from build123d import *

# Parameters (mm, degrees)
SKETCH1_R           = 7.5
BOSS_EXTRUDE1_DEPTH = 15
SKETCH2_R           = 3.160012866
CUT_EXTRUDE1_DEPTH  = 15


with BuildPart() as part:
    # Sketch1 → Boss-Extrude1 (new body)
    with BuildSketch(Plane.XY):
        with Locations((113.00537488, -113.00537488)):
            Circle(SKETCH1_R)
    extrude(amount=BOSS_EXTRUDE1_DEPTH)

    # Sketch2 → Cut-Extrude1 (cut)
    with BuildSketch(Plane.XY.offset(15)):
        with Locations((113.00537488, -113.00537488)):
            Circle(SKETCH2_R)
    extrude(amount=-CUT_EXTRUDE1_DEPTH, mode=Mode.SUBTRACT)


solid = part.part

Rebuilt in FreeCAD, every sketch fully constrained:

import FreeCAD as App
import Part
import Sketcher

V = App.Vector

doc = App.newDocument("Part")
body = doc.addObject("PartDesign::Body", "Body")

# Sketch on XY plane
sketch1 = body.newObject("Sketcher::SketchObject", "Sketch")
sketch1.AttachmentSupport = (doc.getObject("XY_Plane"), [""])
sketch1.MapMode = "FlatFace"
sketch1.addGeometry(Part.Circle(V(113, -113, 0), V(0, 0, 1), 8), False)
sketch1.addConstraint([
    Sketcher.Constraint("Diameter", 0, 15.0),
    Sketcher.Constraint("DistanceX", -1, 1, 0, 3, 113.005375),
    Sketcher.Constraint("DistanceY", 0, 3, -1, 1, 113.005375),
])
pad1 = body.newObject("PartDesign::Pad", "Pad")
pad1.Profile = sketch1
pad1.Length = 15

# Sketch on XY plane
sketch2 = body.newObject("Sketcher::SketchObject", "Sketch001")
sketch2.AttachmentSupport = (doc.getObject("XY_Plane"), [""])
sketch2.MapMode = "FlatFace"
sketch2.AttachmentOffset = App.Placement(V(0, 0, 15), App.Rotation())
sketch2.addGeometry(Part.Circle(V(113, -113, 0), V(0, 0, 1), 3.2), False)
sketch2.addConstraint([
    Sketcher.Constraint("Diameter", 0, 6.320026),
    Sketcher.Constraint("DistanceX", -1, 1, 0, 3, 113.005375),
    Sketcher.Constraint("DistanceY", 0, 3, -1, 1, 113.005375),
])
pocket1 = body.newObject("PartDesign::Pocket", "Pocket")
pocket1.Profile = sketch2
pocket1.Length = 15

doc.recompute()
